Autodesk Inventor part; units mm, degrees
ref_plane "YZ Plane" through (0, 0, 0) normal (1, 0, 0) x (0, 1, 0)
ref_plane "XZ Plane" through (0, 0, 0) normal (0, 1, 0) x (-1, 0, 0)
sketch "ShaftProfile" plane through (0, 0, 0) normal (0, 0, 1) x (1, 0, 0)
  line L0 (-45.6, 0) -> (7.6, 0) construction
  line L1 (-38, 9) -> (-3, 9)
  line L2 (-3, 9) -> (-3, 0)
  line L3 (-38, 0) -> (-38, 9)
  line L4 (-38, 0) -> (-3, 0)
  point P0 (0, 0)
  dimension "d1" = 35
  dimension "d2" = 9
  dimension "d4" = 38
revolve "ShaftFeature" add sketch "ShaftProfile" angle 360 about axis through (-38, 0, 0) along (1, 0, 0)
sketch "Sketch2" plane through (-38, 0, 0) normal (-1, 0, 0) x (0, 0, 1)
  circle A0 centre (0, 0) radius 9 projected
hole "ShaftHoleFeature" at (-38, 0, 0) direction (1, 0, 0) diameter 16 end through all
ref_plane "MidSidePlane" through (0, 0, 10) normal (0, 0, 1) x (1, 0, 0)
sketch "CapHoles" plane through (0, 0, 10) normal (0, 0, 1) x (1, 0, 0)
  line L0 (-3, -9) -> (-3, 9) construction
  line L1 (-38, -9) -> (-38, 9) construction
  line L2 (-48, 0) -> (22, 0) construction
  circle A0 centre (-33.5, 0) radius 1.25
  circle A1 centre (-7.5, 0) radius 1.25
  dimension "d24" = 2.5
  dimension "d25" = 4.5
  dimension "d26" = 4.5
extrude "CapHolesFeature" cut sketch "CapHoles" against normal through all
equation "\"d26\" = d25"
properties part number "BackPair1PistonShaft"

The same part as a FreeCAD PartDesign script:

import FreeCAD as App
import Part
import Sketcher

V = App.Vector
Q = App.Units.Quantity

doc = App.newDocument("Part")
body = doc.addObject("PartDesign::Body", "Body")

sketch1 = body.newObject("Sketcher::SketchObject", "Sketch")
sketch1.AttachmentSupport = (doc.getObject("XY_Plane"), [""])
sketch1.MapMode = "FlatFace"
sketch1.addGeometry([
    Part.LineSegment(V(-3, 9, 0), V(-38, 9, 0)),
    Part.LineSegment(V(-38, 9, 0), V(-38, 0, 0)),
    Part.LineSegment(V(-38, 0, 0), V(-3, 0, 0)),
    Part.LineSegment(V(-3, 0, 0), V(-3, 9, 0)),
], False)
sketch1.addConstraint([
    Sketcher.Constraint("Coincident", 0, 2, 1, 1),
    Sketcher.Constraint("Coincident", 1, 2, 2, 1),
    Sketcher.Constraint("Coincident", 2, 2, 3, 1),
    Sketcher.Constraint("Coincident", 3, 2, 0, 1),
    Sketcher.Constraint("Horizontal", 0),
    Sketcher.Constraint("Vertical", 1),
    Sketcher.Constraint("Horizontal", 2),
    Sketcher.Constraint("Vertical", 3),
    Sketcher.Constraint("PointOnObject", 1, 2, -1),
    Sketcher.Constraint("DistanceX", 0, 2, 0, 1, Q("35 mm")),
    Sketcher.Constraint("DistanceY", 1, 2, 1, 1, Q("9 mm")),
    Sketcher.Constraint("DistanceX", 0, 2, -1, 1, Q("38 mm")),
])
revolution = body.newObject("PartDesign::Revolution", "Revolution")
revolution.Profile = sketch1
revolution.ReferenceAxis = (sketch1, ["H_Axis"])
revolution.Angle = 360

sketch2 = body.newObject("Sketcher::SketchObject", "Sketch001")
sketch2.AttachmentSupport = (doc.getObject("YZ_Plane"), [""])
sketch2.MapMode = "FlatFace"
sketch2.AttachmentOffset = App.Placement(V(0, 0, -38), App.Rotation())
sketch2.addGeometry(Part.Circle(V(0, 0, 0), V(0, 0, 1), 8), False)
sketch2.addConstraint([
    Sketcher.Constraint("Coincident", 0, 3, -1, 1),
    Sketcher.Constraint("Diameter", 0, Q("16 mm")),
])
doc.recompute()
hole = body.newObject("PartDesign::Hole", "Hole")
hole.Profile = sketch2
hole.ThreadType = "None"
hole.Diameter = 16
hole.DepthType = "ThroughAll"
hole.Reversed = True

sketch3 = body.newObject("Sketcher::SketchObject", "Sketch002")
sketch3.AttachmentSupport = (doc.getObject("XY_Plane"), [""])
sketch3.MapMode = "FlatFace"
sketch3.AttachmentOffset = App.Placement(V(0, 0, 10), App.Rotation())
sketch3.addGeometry([
    Part.Circle(V(-33.5, 0, 0), V(0, 0, 1), 1.2),
    Part.Circle(V(-7.5, 0, 0), V(0, 0, 1), 1.2),
], False)
sketch3.addConstraint([
    Sketcher.Constraint("Equal", 0, 1),
    Sketcher.Constraint("PointOnObject", 0, 3, -1),
    Sketcher.Constraint("PointOnObject", 1, 3, -1),
    Sketcher.Constraint("Diameter", 0, Q("2.5 mm")),
    Sketcher.Constraint("DistanceX", 0, 3, 1, 3, Q("26 mm")),
    Sketcher.Constraint("DistanceX", 0, 3, -1, 1, Q("33.5 mm")),
])
pocket1 = body.newObject("PartDesign::Pocket", "Pocket")
pocket1.Profile = sketch3
pocket1.Type = "ThroughAll"

doc.recompute()
